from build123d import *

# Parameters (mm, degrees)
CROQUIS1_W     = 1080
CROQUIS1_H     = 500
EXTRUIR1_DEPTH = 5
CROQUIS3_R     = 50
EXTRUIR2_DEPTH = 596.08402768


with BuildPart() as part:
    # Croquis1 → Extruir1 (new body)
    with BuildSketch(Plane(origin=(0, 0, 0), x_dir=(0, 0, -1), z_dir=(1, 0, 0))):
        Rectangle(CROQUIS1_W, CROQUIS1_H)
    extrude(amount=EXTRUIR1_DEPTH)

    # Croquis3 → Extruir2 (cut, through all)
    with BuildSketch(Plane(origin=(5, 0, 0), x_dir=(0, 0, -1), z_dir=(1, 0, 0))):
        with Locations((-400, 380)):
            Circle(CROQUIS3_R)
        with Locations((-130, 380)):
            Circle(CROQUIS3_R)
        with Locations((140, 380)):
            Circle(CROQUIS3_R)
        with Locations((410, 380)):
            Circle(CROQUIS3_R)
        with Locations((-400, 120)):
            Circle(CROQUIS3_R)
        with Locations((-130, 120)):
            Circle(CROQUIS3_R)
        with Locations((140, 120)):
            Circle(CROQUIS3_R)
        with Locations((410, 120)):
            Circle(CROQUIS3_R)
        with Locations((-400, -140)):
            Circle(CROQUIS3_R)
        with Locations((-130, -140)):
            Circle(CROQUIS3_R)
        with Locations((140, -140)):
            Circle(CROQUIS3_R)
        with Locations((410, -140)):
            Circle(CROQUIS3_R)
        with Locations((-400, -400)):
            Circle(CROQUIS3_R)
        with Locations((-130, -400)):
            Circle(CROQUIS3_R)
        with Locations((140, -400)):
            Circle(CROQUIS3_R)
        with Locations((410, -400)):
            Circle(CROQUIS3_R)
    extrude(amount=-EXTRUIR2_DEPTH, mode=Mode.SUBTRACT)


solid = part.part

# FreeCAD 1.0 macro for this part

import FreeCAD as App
import Part
import Sketcher
from FreeCAD import Vector
Q = App.Units.Quantity

doc = App.newDocument("Part")
params = doc.addObject("Spreadsheet::Sheet", "Params")
for row, (alias, value) in enumerate([
    ("sketch1_width", "500 mm"),
    ("sketch1_height", "1080 mm"),
    ("pad1_length", "5 mm"),
    ("sketch2_diameter", "100 mm"),
], start=1):
    params.set(f"A{row}", alias)
    params.set(f"B{row}", "=" + value)
    params.setAlias(f"B{row}", alias)

body = doc.addObject("PartDesign::Body", "Body")

sketch1 = doc.addObject("Sketcher::SketchObject", "Sketch")
body.addObject(sketch1)
sketch1.AttachmentSupport = (doc.YZ_Plane, [""])
sketch1.MapMode = "FlatFace"
sketch1.addGeometry([
    Part.LineSegment(Vector(250, 540, 0), Vector(-250, 540, 0)),
    Part.LineSegment(Vector(-250, 540, 0), Vector(-250, -540, 0)),
    Part.LineSegment(Vector(-250, -540, 0), Vector(250, -540, 0)),
    Part.LineSegment(Vector(250, -540, 0), Vector(250, 540, 0)),
], False)
sketch1.addConstraint([
    Sketcher.Constraint("Coincident", 0, 2, 1, 1),
    Sketcher.Constraint("Coincident", 1, 2, 2, 1),
    Sketcher.Constraint("Coincident", 2, 2, 3, 1),
    Sketcher.Constraint("Coincident", 3, 2, 0, 1),
    Sketcher.Constraint("Horizontal", 0),
    Sketcher.Constraint("Vertical", 1),
    Sketcher.Constraint("Horizontal", 2),
    Sketcher.Constraint("Vertical", 3),
    Sketcher.Constraint("Symmetric", 0, 2, 2, 2, -1, 1),
    Sketcher.Constraint("DistanceX", 0, 2, 0, 1, Q("500 mm")),
    Sketcher.Constraint("DistanceY", 1, 2, 1, 1, Q("1080 mm")),
])
sketch1.setExpression("Constraints[9]", "Params.sketch1_width")
sketch1.setExpression("Constraints[10]", "Params.sketch1_height")
pad1 = doc.addObject("PartDesign::Pad", "Pad")
body.addObject(pad1)
pad1.Profile = sketch1
pad1.setExpression("Length", "Params.pad1_length")

sketch2 = doc.addObject("Sketcher::SketchObject", "Sketch001")
body.addObject(sketch2)
sketch2.AttachmentSupport = (doc.YZ_Plane, [""])
sketch2.MapMode = "FlatFace"
sketch2.AttachmentOffset = App.Placement(Vector(0, 0, 5), App.Rotation())
sketch2.addGeometry([
    Part.Circle(Vector(380, 400, 0), Vector(0, 0, 1), 50),
    Part.Circle(Vector(380, 130, 0), Vector(0, 0, 1), 50),
    Part.Circle(Vector(380, -140, 0), Vector(0, 0, 1), 50),
    Part.Circle(Vector(380, -410, 0), Vector(0, 0, 1), 50),
    Part.Circle(Vector(120, 400, 0), Vector(0, 0, 1), 50),
    Part.Circle(Vector(120, 130, 0), Vector(0, 0, 1), 50),
    Part.Circle(Vector(120, -140, 0), Vector(0, 0, 1), 50),
    Part.Circle(Vector(120, -410, 0), Vector(0, 0, 1), 50),
    Part.Circle(Vector(-140, 400, 0), Vector(0, 0, 1), 50),
    Part.Circle(Vector(-140, 130, 0), Vector(0, 0, 1), 50),
    Part.Circle(Vector(-140, -140, 0), Vector(0, 0, 1), 50),
    Part.Circle(Vector(-140, -410, 0), Vector(0, 0, 1), 50),
    Part.Circle(Vector(-400, 400, 0), Vector(0, 0, 1), 50),
    Part.Circle(Vector(-400, 130, 0), Vector(0, 0, 1), 50),
    Part.Circle(Vector(-400, -140, 0), Vector(0, 0, 1), 50),
    Part.Circle(Vector(-400, -410, 0), Vector(0, 0, 1), 50),
], False)
sketch2.addConstraint([
    Sketcher.Constraint("Equal", 0, 1),
    Sketcher.Constraint("Equal", 1, 2),
    Sketcher.Constraint("Equal", 2, 3),
    Sketcher.Constraint("Equal", 3, 4),
    Sketcher.Constraint("Equal", 4, 5),
    Sketcher.Constraint("Equal", 5, 6),
    Sketcher.Constraint("Equal", 6, 7),
    Sketcher.Constraint("Equal", 7, 8),
    Sketcher.Constraint("Equal", 8, 9),
    Sketcher.Constraint("Equal", 9, 10),
    Sketcher.Constraint("Equal", 10, 11),
    Sketcher.Constraint("Equal", 11, 12),
    Sketcher.Constraint("Equal", 12, 13),
    Sketcher.Constraint("Equal", 13, 14),
    Sketcher.Constraint("Equal", 14, 15),
    Sketcher.Constraint("Horizontal", 0, 3, 4, 3),
    Sketcher.Constraint("Horizontal", 1, 3, 5, 3),
    Sketcher.Constraint("Horizontal", 2, 3, 6, 3),
    Sketcher.Constraint("Horizontal", 3, 3, 7, 3),
    Sketcher.Constraint("Horizontal", 4, 3, 8, 3),
    Sketcher.Constraint("Horizontal", 5, 3, 9, 3),
    Sketcher.Constraint("Horizontal", 6, 3, 10, 3),
    Sketcher.Constraint("Horizontal", 7, 3, 11, 3),
    Sketcher.Constraint("Horizontal", 8, 3, 12, 3),
    Sketcher.Constraint("Horizontal", 9, 3, 13, 3),
    Sketcher.Constraint("Horizontal", 10, 3, 14, 3),
    Sketcher.Constraint("Horizontal", 11, 3, 15, 3),
    Sketcher.Constraint("Vertical", 0, 3, 1, 3),
    Sketcher.Constraint("Vertical", 1, 3, 2, 3),
    Sketcher.Constraint("Vertical", 2, 3, 3, 3),
    Sketcher.Constraint("Vertical", 4, 3, 5, 3),
    Sketcher.Constraint("Vertical", 5, 3, 6, 3),
    Sketcher.Constraint("Vertical", 6, 3, 7, 3),
    Sketcher.Constraint("Vertical", 8, 3, 9, 3),
    Sketcher.Constraint("Vertical", 9, 3, 10, 3),
    Sketcher.Constraint("Vertical", 10, 3, 11, 3),
    Sketcher.Constraint("Vertical", 12, 3, 13, 3),
    Sketcher.Constraint("Vertical", 13, 3, 14, 3),
    Sketcher.Constraint("Vertical", 14, 3, 15, 3),
    Sketcher.Constraint("Diameter", 0, Q("100 mm")),
    Sketcher.Constraint("DistanceX", -1, 1, 0, 3, Q("380 mm")),
    Sketcher.Constraint("DistanceY", -1, 1, 0, 3, Q("400 mm")),
    Sketcher.Constraint("DistanceY", -1, 1, 1, 3, Q("130 mm")),
    Sketcher.Constraint("DistanceY", 2, 3, -1, 1, Q("140 mm")),
    Sketcher.Constraint("DistanceY", 3, 3, -1, 1, Q("410 mm")),
    Sketcher.Constraint("DistanceX", -1, 1, 4, 3, Q("120 mm")),
    Sketcher.Constraint("DistanceX", 8, 3, -1, 1, Q("140 mm")),
    Sketcher.Constraint("DistanceX", 12, 3, -1, 1, Q("400 mm")),
])
sketch2.setExpression("Constraints[39]", "Params.sketch2_diameter")
pocket1 = doc.addObject("PartDesign::Pocket", "Pocket")
body.addObject(pocket1)
pocket1.Profile = sketch2
pocket1.Type = "ThroughAll"

doc.recompute()
